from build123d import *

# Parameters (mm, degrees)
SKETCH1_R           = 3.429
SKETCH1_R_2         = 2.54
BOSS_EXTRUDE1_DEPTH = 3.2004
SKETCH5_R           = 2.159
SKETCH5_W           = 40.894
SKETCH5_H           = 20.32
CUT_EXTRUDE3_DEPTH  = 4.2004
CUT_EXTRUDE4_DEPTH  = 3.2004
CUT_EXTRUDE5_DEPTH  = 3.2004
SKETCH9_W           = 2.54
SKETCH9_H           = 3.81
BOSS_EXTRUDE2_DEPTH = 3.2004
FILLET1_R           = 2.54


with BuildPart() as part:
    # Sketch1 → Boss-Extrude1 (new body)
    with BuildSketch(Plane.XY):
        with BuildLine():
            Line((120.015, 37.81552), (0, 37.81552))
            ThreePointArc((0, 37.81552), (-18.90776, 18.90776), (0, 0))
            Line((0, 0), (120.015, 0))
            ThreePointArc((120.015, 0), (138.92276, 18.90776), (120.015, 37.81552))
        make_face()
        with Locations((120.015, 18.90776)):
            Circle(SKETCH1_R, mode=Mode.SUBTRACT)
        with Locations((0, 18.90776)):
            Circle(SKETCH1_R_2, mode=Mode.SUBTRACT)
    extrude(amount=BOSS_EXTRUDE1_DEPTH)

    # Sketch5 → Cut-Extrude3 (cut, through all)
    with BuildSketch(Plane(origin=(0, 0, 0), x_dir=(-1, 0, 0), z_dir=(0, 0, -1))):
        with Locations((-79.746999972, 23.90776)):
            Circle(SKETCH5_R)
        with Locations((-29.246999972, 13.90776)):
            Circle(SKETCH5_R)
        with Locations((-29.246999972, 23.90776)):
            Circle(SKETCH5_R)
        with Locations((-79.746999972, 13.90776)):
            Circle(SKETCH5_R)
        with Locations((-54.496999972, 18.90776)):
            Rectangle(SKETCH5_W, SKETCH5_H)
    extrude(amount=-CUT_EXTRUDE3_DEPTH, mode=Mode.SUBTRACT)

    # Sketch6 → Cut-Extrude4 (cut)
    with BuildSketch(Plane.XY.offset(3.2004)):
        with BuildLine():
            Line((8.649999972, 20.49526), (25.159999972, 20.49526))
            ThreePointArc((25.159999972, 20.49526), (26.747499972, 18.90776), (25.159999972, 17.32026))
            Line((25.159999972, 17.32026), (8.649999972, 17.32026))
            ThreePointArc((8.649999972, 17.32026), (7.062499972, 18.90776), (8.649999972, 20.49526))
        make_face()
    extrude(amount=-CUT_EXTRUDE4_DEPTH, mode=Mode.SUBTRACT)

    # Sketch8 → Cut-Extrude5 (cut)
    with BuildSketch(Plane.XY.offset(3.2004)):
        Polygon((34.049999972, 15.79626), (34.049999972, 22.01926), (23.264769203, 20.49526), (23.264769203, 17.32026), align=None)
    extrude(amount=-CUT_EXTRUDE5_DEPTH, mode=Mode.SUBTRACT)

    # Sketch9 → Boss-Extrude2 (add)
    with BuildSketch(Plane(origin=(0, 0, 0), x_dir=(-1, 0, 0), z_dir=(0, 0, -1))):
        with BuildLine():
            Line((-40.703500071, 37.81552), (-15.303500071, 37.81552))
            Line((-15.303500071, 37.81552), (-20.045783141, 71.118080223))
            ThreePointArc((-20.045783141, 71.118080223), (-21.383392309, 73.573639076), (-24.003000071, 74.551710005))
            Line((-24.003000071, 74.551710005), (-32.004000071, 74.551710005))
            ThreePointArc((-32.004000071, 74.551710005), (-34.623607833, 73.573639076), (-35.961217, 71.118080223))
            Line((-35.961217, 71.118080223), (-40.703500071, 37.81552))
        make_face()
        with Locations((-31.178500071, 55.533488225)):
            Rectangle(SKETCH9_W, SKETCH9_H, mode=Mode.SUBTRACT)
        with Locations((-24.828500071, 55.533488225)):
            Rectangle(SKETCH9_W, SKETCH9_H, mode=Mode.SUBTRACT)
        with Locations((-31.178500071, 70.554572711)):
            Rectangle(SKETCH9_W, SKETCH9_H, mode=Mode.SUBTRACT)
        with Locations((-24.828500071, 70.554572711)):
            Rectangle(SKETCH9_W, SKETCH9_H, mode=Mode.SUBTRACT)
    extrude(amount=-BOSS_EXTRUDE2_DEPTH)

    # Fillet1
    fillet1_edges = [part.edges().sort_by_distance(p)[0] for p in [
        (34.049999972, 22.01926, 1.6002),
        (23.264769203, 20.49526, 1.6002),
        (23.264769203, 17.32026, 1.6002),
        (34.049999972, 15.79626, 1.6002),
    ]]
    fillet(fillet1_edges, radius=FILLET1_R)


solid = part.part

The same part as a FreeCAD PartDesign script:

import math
import FreeCAD as App
import Part
import Sketcher
Q = App.Units.Quantity


def edges_at(feature, points):
    """Names of the edges that pass closest to the given points."""
    edges = feature.Shape.Edges
    near = lambda p: min(range(len(edges)), key=lambda i: edges[i].distToShape(Part.Vertex(*p))[0])
    return sorted({f"Edge{near(p) + 1}" for p in points})

doc = App.newDocument("Part")
body = doc.addObject("PartDesign::Body", "Body")

# Sketch on XY plane
sketch1 = doc.addObject("Sketcher::SketchObject", "Sketch")
body.addObject(sketch1)
sketch1.AttachmentSupport = (doc.XY_Plane, [""])
sketch1.MapMode = "FlatFace"
sketch1.addGeometry([
    Part.LineSegment(App.Vector(120, 37.8, 0), App.Vector(0, 37.8, 0)),  # 0
    Part.ArcOfCircle(Part.Circle(App.Vector(0, 18.9, 0), App.Vector(0, 0, 1), 18.9), math.radians(90), math.radians(270)),  # 1
    Part.LineSegment(App.Vector(0, 0, 0), App.Vector(120, 0, 0)),  # 2
    Part.ArcOfCircle(Part.Circle(App.Vector(120, 18.9, 0), App.Vector(0, 0, 1), 18.9), math.radians(-90), math.radians(90)),  # 3
    Part.Circle(App.Vector(0, 18.9, 0), App.Vector(0, 0, 1), 2.5),  # 4
    Part.Circle(App.Vector(120, 18.9, 0), App.Vector(0, 0, 1), 3.4),  # 5
], False)
sketch1.addConstraint([
    Sketcher.Constraint("Tangent", 0, 2, 1, 1),
    Sketcher.Constraint("Tangent", 1, 2, 2, 1),
    Sketcher.Constraint("Tangent", 2, 2, 3, 1),
    Sketcher.Constraint("Tangent", 3, 2, 0, 1),
    Sketcher.Constraint("Horizontal", 0),
    Sketcher.Constraint("Horizontal", 2),
    Sketcher.Constraint("Coincident", 1, 2, -1, 1),
    Sketcher.Constraint("Coincident", 4, 3, 1, 3),
    Sketcher.Constraint("Coincident", 5, 3, 3, 3),
    Sketcher.Constraint("Diameter", 4, Q("0.2 in")),
    Sketcher.Constraint("Diameter", 5, Q("0.27 in")),
    Sketcher.Constraint("Radius", 1, Q("0.7444 in")),
    Sketcher.Constraint("DistanceX", 0, 2, 0, 1, Q("4.725 in")),
])
pad1 = doc.addObject("PartDesign::Pad", "Pad")
body.addObject(pad1)
pad1.Profile = sketch1
pad1.Length = Q("0.126 in")

# Sketch on XY plane
sketch2 = doc.addObject("Sketcher::SketchObject", "Sketch001")
body.addObject(sketch2)
sketch2.AttachmentSupport = (doc.XY_Plane, [""])
sketch2.MapMode = "FlatFace"
sketch2.addGeometry([
    Part.Circle(App.Vector(79.7, 23.9, 0), App.Vector(0, 0, 1), 2.2),  # 0
    Part.Circle(App.Vector(29.2, 13.9, 0), App.Vector(0, 0, 1), 2.2),  # 1
    Part.Circle(App.Vector(29.2, 23.9, 0), App.Vector(0, 0, 1), 2.2),  # 2
    Part.Circle(App.Vector(79.7, 13.9, 0), App.Vector(0, 0, 1), 2.2),  # 3
    Part.LineSegment(App.Vector(74.9, 29.1, 0), App.Vector(74.9, 8.7, 0)),  # 4
    Part.LineSegment(App.Vector(74.9, 8.7, 0), App.Vector(34, 8.7, 0)),  # 5
    Part.LineSegment(App.Vector(34, 8.7, 0), App.Vector(34, 29.1, 0)),  # 6
    Part.LineSegment(App.Vector(34, 29.1, 0), App.Vector(74.9, 29.1, 0)),  # 7
], False)
sketch2.addConstraint([
    Sketcher.Constraint("Coincident", 4, 2, 5, 1),
    Sketcher.Constraint("Coincident", 5, 2, 6, 1),
    Sketcher.Constraint("Coincident", 6, 2, 7, 1),
    Sketcher.Constraint("Coincident", 7, 2, 4, 1),
    Sketcher.Constraint("Vertical", 4),
    Sketcher.Constraint("Horizontal", 5),
    Sketcher.Constraint("Vertical", 6),
    Sketcher.Constraint("Horizontal", 7),
    Sketcher.Constraint("Equal", 0, 1),
    Sketcher.Constraint("Equal", 1, 2),
    Sketcher.Constraint("Equal", 2, 3),
    Sketcher.Constraint("Horizontal", 0, 3, 2, 3),
    Sketcher.Constraint("Horizontal", 1, 3, 3, 3),
    Sketcher.Constraint("Vertical", 1, 3, 2, 3),
    Sketcher.Constraint("Vertical", 0, 3, 3, 3),
    Sketcher.Constraint("Diameter", 0, Q("0.17 in")),
    Sketcher.Constraint("DistanceY", 4, 2, 4, 1, Q("0.8 in")),
    Sketcher.Constraint("DistanceX", 5, 2, 5, 1, Q("1.61 in")),
    Sketcher.Constraint("DistanceY", -1, 1, 4, 2, Q("0.3444 in")),
    Sketcher.Constraint("DistanceX", -1, 1, 0, 3, Q("79.747 mm")),
    Sketcher.Constraint("DistanceX", -1, 1, 1, 3, Q("29.247 mm")),
    Sketcher.Constraint("DistanceX", -1, 1, 4, 2, Q("74.944 mm")),
    Sketcher.Constraint("DistanceY", 1, 3, 0, 3, Q("10 mm")),
    Sketcher.Constraint("DistanceY", 4, 2, 3, 3, Q("5.16 mm")),
])
pocket1 = doc.addObject("PartDesign::Pocket", "Pocket")
body.addObject(pocket1)
pocket1.Profile = sketch2
pocket1.Type = "ThroughAll"
pocket1.Reversed = True

# Sketch on XY plane
sketch3 = doc.addObject("Sketcher::SketchObject", "Sketch002")
body.addObject(sketch3)
sketch3.AttachmentSupport = (doc.XY_Plane, [""])
sketch3.MapMode = "FlatFace"
sketch3.AttachmentOffset = App.Placement(App.Vector(0, 0, 0.126 * 25.4), App.Rotation())
sketch3.addGeometry([
    Part.LineSegment(App.Vector(25.2, 20.5, 0), App.Vector(8.6, 20.5, 0)),
    Part.ArcOfCircle(Part.Circle(App.Vector(8.6, 18.9, 0), App.Vector(0, 0, 1), 1.6), math.radians(90), math.radians(270)),
    Part.LineSegment(App.Vector(8.6, 17.3, 0), App.Vector(25.2, 17.3, 0)),
    Part.ArcOfCircle(Part.Circle(App.Vector(25.2, 18.9, 0), App.Vector(0, 0, 1), 1.6), math.radians(-90), math.radians(90)),
], False)
sketch3.addConstraint([
    Sketcher.Constraint("Tangent", 0, 2, 1, 1),
    Sketcher.Constraint("Tangent", 1, 2, 2, 1),
    Sketcher.Constraint("Tangent", 2, 2, 3, 1),
    Sketcher.Constraint("Tangent", 3, 2, 0, 1),
    Sketcher.Constraint("Horizontal", 0),
    Sketcher.Constraint("Horizontal", 2),
    Sketcher.Constraint("Radius", 1, Q("0.0625 in")),
    Sketcher.Constraint("DistanceX", 0, 2, 0, 1, Q("0.65 in")),
    Sketcher.Constraint("DistanceY", -1, 1, 1, 3, Q("0.7444 in")),
    Sketcher.Constraint("DistanceX", -1, 1, 1, 3, Q("8.65 mm")),
])
pocket2 = doc.addObject("PartDesign::Pocket", "Pocket001")
body.addObject(pocket2)
pocket2.Profile = sketch3
pocket2.Length = Q("0.126 in")

# Sketch on XY plane
sketch4 = doc.addObject("Sketcher::SketchObject", "Sketch003")
body.addObject(sketch4)
sketch4.AttachmentSupport = (doc.XY_Plane, [""])
sketch4.MapMode = "FlatFace"
sketch4.AttachmentOffset = App.Placement(App.Vector(0, 0, 0.126 * 25.4), App.Rotation())
sketch4.addGeometry([
    Part.LineSegment(App.Vector(34, 15.8, 0), App.Vector(34, 22, 0)),
    Part.LineSegment(App.Vector(34, 22, 0), App.Vector(23.3, 20.5, 0)),
    Part.LineSegment(App.Vector(23.3, 20.5, 0), App.Vector(23.3, 17.3, 0)),
    Part.LineSegment(App.Vector(23.3, 17.3, 0), App.Vector(34, 15.8, 0)),
], False)
sketch4.addConstraint([
    Sketcher.Constraint("Coincident", 0, 2, 1, 1),
    Sketcher.Constraint("Coincident", 1, 2, 2, 1),
    Sketcher.Constraint("Coincident", 2, 2, 3, 1),
    Sketcher.Constraint("Coincident", 3, 2, 0, 1),
    Sketcher.Constraint("Vertical", 0),
    Sketcher.Constraint("Vertical", 2),
    Sketcher.Constraint("Equal", 1, 3),
    Sketcher.Constraint("DistanceY", 0, 1, 0, 2, Q("0.245 in")),
    Sketcher.Constraint("DistanceY", 2, 2, 2, 1, Q("0.125 in")),
    Sketcher.Constraint("DistanceY", -1, 1, 0, 2, Q("0.8669 in")),
    Sketcher.Constraint("DistanceX", -1, 1, 0, 2, Q("34.05 mm")),
    Sketcher.Constraint("DistanceX", -1, 1, 1, 2, Q("23.264769 mm")),
])
pocket3 = doc.addObject("PartDesign::Pocket", "Pocket002")
body.addObject(pocket3)
pocket3.Profile = sketch4
pocket3.Length = Q("0.126 in")

# Sketch on XY plane
sketch5 = doc.addObject("Sketcher::SketchObject", "Sketch004")
body.addObject(sketch5)
sketch5.AttachmentSupport = (doc.XY_Plane, [""])
sketch5.MapMode = "FlatFace"
sketch5.addGeometry([
    Part.LineSegment(App.Vector(40.7, 37.8, 0), App.Vector(15.3, 37.8, 0)),  # 0
    Part.LineSegment(App.Vector(15.3, 37.8, 0), App.Vector(20, 71.1, 0)),  # 1
    Part.ArcOfCircle(Part.Circle(App.Vector(24, 70.6, 0), App.Vector(0, 0, 1), 4), math.radians(90), math.radians(172)),  # 2
    Part.LineSegment(App.Vector(24, 74.6, 0), App.Vector(32, 74.6, 0)),  # 3
    Part.ArcOfCircle(Part.Circle(App.Vector(32, 70.6, 0), App.Vector(0, 0, 1), 4), math.radians(8), math.radians(90)),  # 4
    Part.LineSegment(App.Vector(36, 71.1, 0), App.Vector(40.7, 37.8, 0)),  # 5
    Part.LineSegment(App.Vector(29.9, 53.6, 0), App.Vector(32.4, 53.6, 0)),  # 6
    Part.LineSegment(App.Vector(32.4, 53.6, 0), App.Vector(32.4, 57.4, 0)),  # 7
    Part.LineSegment(App.Vector(32.4, 57.4, 0), App.Vector(29.9, 57.4, 0)),  # 8
    Part.LineSegment(App.Vector(29.9, 57.4, 0), App.Vector(29.9, 53.6, 0)),  # 9
    Part.LineSegment(App.Vector(23.6, 53.6, 0), App.Vector(26.1, 53.6, 0)),  # 10
    Part.LineSegment(App.Vector(26.1, 53.6, 0), App.Vector(26.1, 57.4, 0)),  # 11
    Part.LineSegment(App.Vector(26.1, 57.4, 0), App.Vector(23.6, 57.4, 0)),  # 12
    Part.LineSegment(App.Vector(23.6, 57.4, 0), App.Vector(23.6, 53.6, 0)),  # 13
    Part.LineSegment(App.Vector(29.9, 68.6, 0), App.Vector(32.4, 68.6, 0)),  # 14
    Part.LineSegment(App.Vector(32.4, 68.6, 0), App.Vector(32.4, 72.5, 0)),  # 15
    Part.LineSegment(App.Vector(32.4, 72.5, 0), App.Vector(29.9, 72.5, 0)),  # 16
    Part.LineSegment(App.Vector(29.9, 72.5, 0), App.Vector(29.9, 68.6, 0)),  # 17
    Part.LineSegment(App.Vector(23.6, 68.6, 0), App.Vector(26.1, 68.6, 0)),  # 18
    Part.LineSegment(App.Vector(26.1, 68.6, 0), App.Vector(26.1, 72.5, 0)),  # 19
    Part.LineSegment(App.Vector(26.1, 72.5, 0), App.Vector(23.6, 72.5, 0)),  # 20
    Part.LineSegment(App.Vector(23.6, 72.5, 0), App.Vector(23.6, 68.6, 0)),  # 21
], False)
sketch5.addConstraint([
    Sketcher.Constraint("Coincident", 0, 2, 1, 1),
    Sketcher.Constraint("Tangent", 1, 2, 2, 2),
    Sketcher.Constraint("Tangent", 2, 1, 3, 1),
    Sketcher.Constraint("Tangent", 3, 2, 4, 2),
    Sketcher.Constraint("Tangent", 4, 1, 5, 1),
    Sketcher.Constraint("Coincident", 5, 2, 0, 1),
    Sketcher.Constraint("Coincident", 6, 2, 7, 1),
    Sketcher.Constraint("Coincident", 7, 2, 8, 1),
    Sketcher.Constraint("Coincident", 8, 2, 9, 1),
    Sketcher.Constraint("Coincident", 9, 2, 6, 1),
    Sketcher.Constraint("Coincident", 10, 2, 11, 1),
    Sketcher.Constraint("Coincident", 11, 2, 12, 1),
    Sketcher.Constraint("Coincident", 12, 2, 13, 1),
    Sketcher.Constraint("Coincident", 13, 2, 10, 1),
    Sketcher.Constraint("Coincident", 14, 2, 15, 1),
    Sketcher.Constraint("Coincident", 15, 2, 16, 1),
    Sketcher.Constraint("Coincident", 16, 2, 17, 1),
    Sketcher.Constraint("Coincident", 17, 2, 14, 1),
    Sketcher.Constraint("Coincident", 18, 2, 19, 1),
    Sketcher.Constraint("Coincident", 19, 2, 20, 1),
    Sketcher.Constraint("Coincident", 20, 2, 21, 1),
    Sketcher.Constraint("Coincident", 21, 2, 18, 1),
    Sketcher.Constraint("Horizontal", 0),
    Sketcher.Constraint("Horizontal", 3),
    Sketcher.Constraint("Horizontal", 6),
    Sketcher.Constraint("Vertical", 7),
    Sketcher.Constraint("Horizontal", 8),
    Sketcher.Constraint("Vertical", 9),
    Sketcher.Constraint("Horizontal", 10),
    Sketcher.Constraint("Vertical", 11),
    Sketcher.Constraint("Horizontal", 12),
    Sketcher.Constraint("Vertical", 13),
    Sketcher.Constraint("Horizontal", 14),
    Sketcher.Constraint("Vertical", 15),
    Sketcher.Constraint("Horizontal", 16),
    Sketcher.Constraint("Vertical", 17),
    Sketcher.Constraint("Horizontal", 18),
    Sketcher.Constraint("Vertical", 19),
    Sketcher.Constraint("Horizontal", 20),
    Sketcher.Constraint("Vertical", 21),
    Sketcher.Constraint("Equal", 2, 4),
    Sketcher.Constraint("Horizontal", 1, 2, 4, 1),
    Sketcher.Constraint("Horizontal", 9, 2, 10, 2),
    Sketcher.Constraint("Horizontal", 8, 2, 11, 2),
    Sketcher.Constraint("Horizontal", 17, 2, 18, 2),
    Sketcher.Constraint("Horizontal", 16, 2, 19, 2),
    Sketcher.Constraint("Vertical", 7, 2, 14, 2),
    Sketcher.Constraint("Vertical", 9, 2, 16, 2),
    Sketcher.Constraint("Vertical", 11, 2, 18, 2),
    Sketcher.Constraint("Vertical", 13, 2, 20, 2),
    Sketcher.Constraint("Equal", 8, 10),
    Sketcher.Constraint("Equal", 13, 15),
    Sketcher.Constraint("DistanceX", 0, 2, 0, 1, Q("1 in")),
    Sketcher.Constraint("DistanceX", 6, 1, 6, 2, Q("0.1 in")),
    Sketcher.Constraint("DistanceY", 7, 1, 7, 2, Q("0.15 in")),
    Sketcher.Constraint("DistanceX", 3, 1, 3, 2, Q("0.315 in")),
    Sketcher.Constraint("DistanceX", -1, 1, 4, 3, Q("1.26 in")),
    Sketcher.Constraint("DistanceX", 10, 2, 9, 2, Q("0.15 in")),
    Sketcher.Constraint("DistanceX", 6, 2, 5, 2, Q("0.325 in")),
    Sketcher.Constraint("DistanceY", 14, 2, 4, 3, Q("0.075 in")),
    Sketcher.Constraint("DistanceY", -1, 1, 0, 2, Q("1.4888 in")),
    Sketcher.Constraint("Radius", 2, Q("3.997137 mm")),
    Sketcher.Constraint("DistanceY", -1, 1, 1, 2, Q("71.11808 mm")),
    Sketcher.Constraint("DistanceY", -1, 1, 6, 2, Q("53.628488 mm")),
])
pad2 = doc.addObject("PartDesign::Pad", "Pad001")
body.addObject(pad2)
pad2.Profile = sketch5
pad2.Length = Q("0.126 in")
doc.recompute()

fillet = doc.addObject("PartDesign::Fillet", "Fillet")
body.addObject(fillet)
fillet.Base = (pad2, edges_at(pad2, [
    (34.05, 22.019, 1.6),
    (23.265, 20.495, 1.6),
    (23.265, 17.32, 1.6),
    (34.05, 15.796, 1.6),
]))
fillet.Radius = Q("0.1 in")

doc.recompute()
